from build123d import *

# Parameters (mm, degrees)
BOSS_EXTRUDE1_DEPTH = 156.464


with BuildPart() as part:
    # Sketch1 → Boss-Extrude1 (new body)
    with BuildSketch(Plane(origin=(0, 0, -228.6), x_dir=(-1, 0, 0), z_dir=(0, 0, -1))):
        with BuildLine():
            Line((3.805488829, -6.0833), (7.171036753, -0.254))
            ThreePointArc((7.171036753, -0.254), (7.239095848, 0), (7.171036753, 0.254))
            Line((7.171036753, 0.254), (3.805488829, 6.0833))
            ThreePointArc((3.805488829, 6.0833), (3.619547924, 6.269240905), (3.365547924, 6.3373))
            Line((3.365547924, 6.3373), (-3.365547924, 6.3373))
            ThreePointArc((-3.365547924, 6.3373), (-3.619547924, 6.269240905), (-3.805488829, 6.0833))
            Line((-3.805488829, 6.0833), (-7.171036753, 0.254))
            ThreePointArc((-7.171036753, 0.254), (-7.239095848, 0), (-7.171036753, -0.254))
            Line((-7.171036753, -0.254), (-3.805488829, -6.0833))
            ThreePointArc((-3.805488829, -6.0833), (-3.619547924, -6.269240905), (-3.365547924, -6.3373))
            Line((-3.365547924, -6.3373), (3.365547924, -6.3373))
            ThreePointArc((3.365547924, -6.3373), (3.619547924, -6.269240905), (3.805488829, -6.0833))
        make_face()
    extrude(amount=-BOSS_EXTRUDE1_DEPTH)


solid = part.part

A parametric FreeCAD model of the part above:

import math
import FreeCAD as App
import Part
import Sketcher
from FreeCAD import Vector
Q = App.Units.Quantity

doc = App.newDocument("Part")
body = doc.addObject("PartDesign::Body", "Body")

sketch1 = doc.addObject("Sketcher::SketchObject", "Sketch")
body.addObject(sketch1)
sketch1.AttachmentSupport = (doc.XY_Plane, [""])
sketch1.MapMode = "FlatFace"
sketch1.AttachmentOffset = App.Placement(Vector(0, 0, -9 * 25.4), App.Rotation())
sketch1.addGeometry([
    Part.LineSegment(Vector(-3.8, -6.1, 0), Vector(-7.2, -0.3, 0)),
    Part.ArcOfCircle(Part.Circle(Vector(-6.7, 0, 0), Vector(0, 0, 1), 0.5), math.radians(150), math.radians(210)),
    Part.LineSegment(Vector(-7.2, 0.3, 0), Vector(-3.8, 6.1, 0)),
    Part.ArcOfCircle(Part.Circle(Vector(-3.4, 5.8, 0), Vector(0, 0, 1), 0.5), math.radians(90), math.radians(150)),
    Part.LineSegment(Vector(-3.4, 6.3, 0), Vector(3.4, 6.3, 0)),
    Part.ArcOfCircle(Part.Circle(Vector(3.4, 5.8, 0), Vector(0, 0, 1), 0.5), math.radians(30), math.radians(90)),
    Part.LineSegment(Vector(3.8, 6.1, 0), Vector(7.2, 0.3, 0)),
    Part.ArcOfCircle(Part.Circle(Vector(6.7, 0, 0), Vector(0, 0, 1), 0.5), math.radians(-30), math.radians(30)),
    Part.LineSegment(Vector(7.2, -0.3, 0), Vector(3.8, -6.1, 0)),
    Part.ArcOfCircle(Part.Circle(Vector(3.4, -5.8, 0), Vector(0, 0, 1), 0.5), math.radians(-90), math.radians(-30)),
    Part.LineSegment(Vector(3.4, -6.3, 0), Vector(-3.4, -6.3, 0)),
    Part.ArcOfCircle(Part.Circle(Vector(-3.4, -5.8, 0), Vector(0, 0, 1), 0.5), math.radians(-150), math.radians(-90)),
], False)
sketch1.addConstraint([
    Sketcher.Constraint("Tangent", 0, 2, 1, 2),
    Sketcher.Constraint("Tangent", 1, 1, 2, 1),
    Sketcher.Constraint("Tangent", 2, 2, 3, 2),
    Sketcher.Constraint("Tangent", 3, 1, 4, 1),
    Sketcher.Constraint("Tangent", 4, 2, 5, 2),
    Sketcher.Constraint("Tangent", 5, 1, 6, 1),
    Sketcher.Constraint("Tangent", 6, 2, 7, 2),
    Sketcher.Constraint("Tangent", 7, 1, 8, 1),
    Sketcher.Constraint("Tangent", 8, 2, 9, 2),
    Sketcher.Constraint("Tangent", 9, 1, 10, 1),
    Sketcher.Constraint("Tangent", 10, 2, 11, 2),
    Sketcher.Constraint("Tangent", 11, 1, 0, 1),
    Sketcher.Constraint("Horizontal", 4),
    Sketcher.Constraint("Horizontal", 10),
    Sketcher.Constraint("Equal", 1, 3),
    Sketcher.Constraint("Equal", 3, 5),
    Sketcher.Constraint("Equal", 5, 7),
    Sketcher.Constraint("Equal", 7, 9),
    Sketcher.Constraint("Equal", 9, 11),
    Sketcher.Constraint("Symmetric", 1, 3, 7, 3, -1, 1),
    Sketcher.Constraint("Symmetric", 3, 3, 9, 3, -1, 1),
    Sketcher.Constraint("Symmetric", 2, 2, 5, 1, -2),
    Sketcher.Constraint("Parallel", 0, 6),
    Sketcher.Constraint("Radius", 1, Q("0.02 in")),
    Sketcher.Constraint("Angle", 0, Q("120 deg")),
    Sketcher.Constraint("DistanceY", 9, 3, 5, 3, Q("0.459 in")),
    Sketcher.Constraint("DistanceX", 4, 1, 4, 2, 6.731096),
])
pad1 = doc.addObject("PartDesign::Pad", "Pad")
body.addObject(pad1)
pad1.Profile = sketch1
pad1.Length = Q("6.16 in")

doc.recompute()
